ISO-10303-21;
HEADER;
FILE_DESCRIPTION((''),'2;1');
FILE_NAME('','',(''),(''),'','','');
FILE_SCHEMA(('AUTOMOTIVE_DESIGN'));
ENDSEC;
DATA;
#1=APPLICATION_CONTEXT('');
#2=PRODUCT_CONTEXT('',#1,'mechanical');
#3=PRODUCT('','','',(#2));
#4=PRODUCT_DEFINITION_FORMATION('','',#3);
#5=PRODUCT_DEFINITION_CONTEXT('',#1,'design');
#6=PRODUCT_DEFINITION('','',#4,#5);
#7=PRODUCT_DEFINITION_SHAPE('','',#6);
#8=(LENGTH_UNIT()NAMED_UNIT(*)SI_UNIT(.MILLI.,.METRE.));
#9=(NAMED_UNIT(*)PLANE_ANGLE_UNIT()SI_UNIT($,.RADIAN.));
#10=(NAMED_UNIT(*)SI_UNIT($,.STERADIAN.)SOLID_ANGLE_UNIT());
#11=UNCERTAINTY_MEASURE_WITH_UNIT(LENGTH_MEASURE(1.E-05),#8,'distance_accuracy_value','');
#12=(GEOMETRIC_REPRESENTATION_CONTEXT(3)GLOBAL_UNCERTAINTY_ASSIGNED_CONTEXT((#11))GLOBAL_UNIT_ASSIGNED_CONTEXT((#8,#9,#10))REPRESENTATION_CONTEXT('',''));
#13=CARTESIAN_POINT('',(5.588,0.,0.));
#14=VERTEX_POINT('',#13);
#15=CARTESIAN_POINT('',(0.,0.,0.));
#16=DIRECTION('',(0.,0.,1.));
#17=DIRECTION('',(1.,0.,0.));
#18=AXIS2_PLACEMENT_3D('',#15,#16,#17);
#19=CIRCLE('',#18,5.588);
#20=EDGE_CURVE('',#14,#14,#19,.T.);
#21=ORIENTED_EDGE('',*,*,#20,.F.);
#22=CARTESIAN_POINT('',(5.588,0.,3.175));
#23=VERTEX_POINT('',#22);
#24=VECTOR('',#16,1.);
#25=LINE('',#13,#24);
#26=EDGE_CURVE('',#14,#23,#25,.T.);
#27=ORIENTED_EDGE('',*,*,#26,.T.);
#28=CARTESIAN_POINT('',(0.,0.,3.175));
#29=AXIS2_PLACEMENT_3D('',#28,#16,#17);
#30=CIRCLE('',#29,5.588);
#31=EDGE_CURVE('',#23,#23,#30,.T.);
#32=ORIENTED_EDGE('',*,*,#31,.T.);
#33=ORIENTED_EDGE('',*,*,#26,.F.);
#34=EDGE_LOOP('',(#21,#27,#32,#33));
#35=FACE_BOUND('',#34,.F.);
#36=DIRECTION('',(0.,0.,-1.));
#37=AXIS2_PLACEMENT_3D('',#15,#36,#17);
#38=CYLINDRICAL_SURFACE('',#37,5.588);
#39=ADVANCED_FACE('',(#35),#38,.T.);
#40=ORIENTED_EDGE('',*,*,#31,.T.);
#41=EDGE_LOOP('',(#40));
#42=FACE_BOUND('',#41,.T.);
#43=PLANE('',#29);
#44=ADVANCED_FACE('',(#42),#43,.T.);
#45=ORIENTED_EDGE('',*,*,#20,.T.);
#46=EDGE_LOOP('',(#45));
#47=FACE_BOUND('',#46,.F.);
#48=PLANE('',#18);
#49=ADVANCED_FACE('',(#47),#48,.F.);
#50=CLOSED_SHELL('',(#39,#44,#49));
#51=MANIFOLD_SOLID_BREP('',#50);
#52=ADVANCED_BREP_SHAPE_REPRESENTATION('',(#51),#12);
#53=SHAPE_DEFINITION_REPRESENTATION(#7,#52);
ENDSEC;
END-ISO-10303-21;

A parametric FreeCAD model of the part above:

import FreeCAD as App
import Part
import Sketcher

V = App.Vector
Q = App.Units.Quantity

doc = App.newDocument("Part")
body = doc.addObject("PartDesign::Body", "Body")

# Sketch on XY plane
sketch1 = body.newObject("Sketcher::SketchObject", "Sketch")
sketch1.AttachmentSupport = (doc.getObject("XY_Plane"), [""])
sketch1.MapMode = "FlatFace"
sketch1.addGeometry(Part.Circle(V(0, 0, 0), V(0, 0, 1), 6), False)
sketch1.addConstraint([
    Sketcher.Constraint("Coincident", 0, 3, -1, 1),
    Sketcher.Constraint("Diameter", 0, Q("0.44 in")),
])
pad1 = body.newObject("PartDesign::Pad", "Pad")
pad1.Profile = sketch1
pad1.Length = Q("0.125 in")

doc.recompute()
